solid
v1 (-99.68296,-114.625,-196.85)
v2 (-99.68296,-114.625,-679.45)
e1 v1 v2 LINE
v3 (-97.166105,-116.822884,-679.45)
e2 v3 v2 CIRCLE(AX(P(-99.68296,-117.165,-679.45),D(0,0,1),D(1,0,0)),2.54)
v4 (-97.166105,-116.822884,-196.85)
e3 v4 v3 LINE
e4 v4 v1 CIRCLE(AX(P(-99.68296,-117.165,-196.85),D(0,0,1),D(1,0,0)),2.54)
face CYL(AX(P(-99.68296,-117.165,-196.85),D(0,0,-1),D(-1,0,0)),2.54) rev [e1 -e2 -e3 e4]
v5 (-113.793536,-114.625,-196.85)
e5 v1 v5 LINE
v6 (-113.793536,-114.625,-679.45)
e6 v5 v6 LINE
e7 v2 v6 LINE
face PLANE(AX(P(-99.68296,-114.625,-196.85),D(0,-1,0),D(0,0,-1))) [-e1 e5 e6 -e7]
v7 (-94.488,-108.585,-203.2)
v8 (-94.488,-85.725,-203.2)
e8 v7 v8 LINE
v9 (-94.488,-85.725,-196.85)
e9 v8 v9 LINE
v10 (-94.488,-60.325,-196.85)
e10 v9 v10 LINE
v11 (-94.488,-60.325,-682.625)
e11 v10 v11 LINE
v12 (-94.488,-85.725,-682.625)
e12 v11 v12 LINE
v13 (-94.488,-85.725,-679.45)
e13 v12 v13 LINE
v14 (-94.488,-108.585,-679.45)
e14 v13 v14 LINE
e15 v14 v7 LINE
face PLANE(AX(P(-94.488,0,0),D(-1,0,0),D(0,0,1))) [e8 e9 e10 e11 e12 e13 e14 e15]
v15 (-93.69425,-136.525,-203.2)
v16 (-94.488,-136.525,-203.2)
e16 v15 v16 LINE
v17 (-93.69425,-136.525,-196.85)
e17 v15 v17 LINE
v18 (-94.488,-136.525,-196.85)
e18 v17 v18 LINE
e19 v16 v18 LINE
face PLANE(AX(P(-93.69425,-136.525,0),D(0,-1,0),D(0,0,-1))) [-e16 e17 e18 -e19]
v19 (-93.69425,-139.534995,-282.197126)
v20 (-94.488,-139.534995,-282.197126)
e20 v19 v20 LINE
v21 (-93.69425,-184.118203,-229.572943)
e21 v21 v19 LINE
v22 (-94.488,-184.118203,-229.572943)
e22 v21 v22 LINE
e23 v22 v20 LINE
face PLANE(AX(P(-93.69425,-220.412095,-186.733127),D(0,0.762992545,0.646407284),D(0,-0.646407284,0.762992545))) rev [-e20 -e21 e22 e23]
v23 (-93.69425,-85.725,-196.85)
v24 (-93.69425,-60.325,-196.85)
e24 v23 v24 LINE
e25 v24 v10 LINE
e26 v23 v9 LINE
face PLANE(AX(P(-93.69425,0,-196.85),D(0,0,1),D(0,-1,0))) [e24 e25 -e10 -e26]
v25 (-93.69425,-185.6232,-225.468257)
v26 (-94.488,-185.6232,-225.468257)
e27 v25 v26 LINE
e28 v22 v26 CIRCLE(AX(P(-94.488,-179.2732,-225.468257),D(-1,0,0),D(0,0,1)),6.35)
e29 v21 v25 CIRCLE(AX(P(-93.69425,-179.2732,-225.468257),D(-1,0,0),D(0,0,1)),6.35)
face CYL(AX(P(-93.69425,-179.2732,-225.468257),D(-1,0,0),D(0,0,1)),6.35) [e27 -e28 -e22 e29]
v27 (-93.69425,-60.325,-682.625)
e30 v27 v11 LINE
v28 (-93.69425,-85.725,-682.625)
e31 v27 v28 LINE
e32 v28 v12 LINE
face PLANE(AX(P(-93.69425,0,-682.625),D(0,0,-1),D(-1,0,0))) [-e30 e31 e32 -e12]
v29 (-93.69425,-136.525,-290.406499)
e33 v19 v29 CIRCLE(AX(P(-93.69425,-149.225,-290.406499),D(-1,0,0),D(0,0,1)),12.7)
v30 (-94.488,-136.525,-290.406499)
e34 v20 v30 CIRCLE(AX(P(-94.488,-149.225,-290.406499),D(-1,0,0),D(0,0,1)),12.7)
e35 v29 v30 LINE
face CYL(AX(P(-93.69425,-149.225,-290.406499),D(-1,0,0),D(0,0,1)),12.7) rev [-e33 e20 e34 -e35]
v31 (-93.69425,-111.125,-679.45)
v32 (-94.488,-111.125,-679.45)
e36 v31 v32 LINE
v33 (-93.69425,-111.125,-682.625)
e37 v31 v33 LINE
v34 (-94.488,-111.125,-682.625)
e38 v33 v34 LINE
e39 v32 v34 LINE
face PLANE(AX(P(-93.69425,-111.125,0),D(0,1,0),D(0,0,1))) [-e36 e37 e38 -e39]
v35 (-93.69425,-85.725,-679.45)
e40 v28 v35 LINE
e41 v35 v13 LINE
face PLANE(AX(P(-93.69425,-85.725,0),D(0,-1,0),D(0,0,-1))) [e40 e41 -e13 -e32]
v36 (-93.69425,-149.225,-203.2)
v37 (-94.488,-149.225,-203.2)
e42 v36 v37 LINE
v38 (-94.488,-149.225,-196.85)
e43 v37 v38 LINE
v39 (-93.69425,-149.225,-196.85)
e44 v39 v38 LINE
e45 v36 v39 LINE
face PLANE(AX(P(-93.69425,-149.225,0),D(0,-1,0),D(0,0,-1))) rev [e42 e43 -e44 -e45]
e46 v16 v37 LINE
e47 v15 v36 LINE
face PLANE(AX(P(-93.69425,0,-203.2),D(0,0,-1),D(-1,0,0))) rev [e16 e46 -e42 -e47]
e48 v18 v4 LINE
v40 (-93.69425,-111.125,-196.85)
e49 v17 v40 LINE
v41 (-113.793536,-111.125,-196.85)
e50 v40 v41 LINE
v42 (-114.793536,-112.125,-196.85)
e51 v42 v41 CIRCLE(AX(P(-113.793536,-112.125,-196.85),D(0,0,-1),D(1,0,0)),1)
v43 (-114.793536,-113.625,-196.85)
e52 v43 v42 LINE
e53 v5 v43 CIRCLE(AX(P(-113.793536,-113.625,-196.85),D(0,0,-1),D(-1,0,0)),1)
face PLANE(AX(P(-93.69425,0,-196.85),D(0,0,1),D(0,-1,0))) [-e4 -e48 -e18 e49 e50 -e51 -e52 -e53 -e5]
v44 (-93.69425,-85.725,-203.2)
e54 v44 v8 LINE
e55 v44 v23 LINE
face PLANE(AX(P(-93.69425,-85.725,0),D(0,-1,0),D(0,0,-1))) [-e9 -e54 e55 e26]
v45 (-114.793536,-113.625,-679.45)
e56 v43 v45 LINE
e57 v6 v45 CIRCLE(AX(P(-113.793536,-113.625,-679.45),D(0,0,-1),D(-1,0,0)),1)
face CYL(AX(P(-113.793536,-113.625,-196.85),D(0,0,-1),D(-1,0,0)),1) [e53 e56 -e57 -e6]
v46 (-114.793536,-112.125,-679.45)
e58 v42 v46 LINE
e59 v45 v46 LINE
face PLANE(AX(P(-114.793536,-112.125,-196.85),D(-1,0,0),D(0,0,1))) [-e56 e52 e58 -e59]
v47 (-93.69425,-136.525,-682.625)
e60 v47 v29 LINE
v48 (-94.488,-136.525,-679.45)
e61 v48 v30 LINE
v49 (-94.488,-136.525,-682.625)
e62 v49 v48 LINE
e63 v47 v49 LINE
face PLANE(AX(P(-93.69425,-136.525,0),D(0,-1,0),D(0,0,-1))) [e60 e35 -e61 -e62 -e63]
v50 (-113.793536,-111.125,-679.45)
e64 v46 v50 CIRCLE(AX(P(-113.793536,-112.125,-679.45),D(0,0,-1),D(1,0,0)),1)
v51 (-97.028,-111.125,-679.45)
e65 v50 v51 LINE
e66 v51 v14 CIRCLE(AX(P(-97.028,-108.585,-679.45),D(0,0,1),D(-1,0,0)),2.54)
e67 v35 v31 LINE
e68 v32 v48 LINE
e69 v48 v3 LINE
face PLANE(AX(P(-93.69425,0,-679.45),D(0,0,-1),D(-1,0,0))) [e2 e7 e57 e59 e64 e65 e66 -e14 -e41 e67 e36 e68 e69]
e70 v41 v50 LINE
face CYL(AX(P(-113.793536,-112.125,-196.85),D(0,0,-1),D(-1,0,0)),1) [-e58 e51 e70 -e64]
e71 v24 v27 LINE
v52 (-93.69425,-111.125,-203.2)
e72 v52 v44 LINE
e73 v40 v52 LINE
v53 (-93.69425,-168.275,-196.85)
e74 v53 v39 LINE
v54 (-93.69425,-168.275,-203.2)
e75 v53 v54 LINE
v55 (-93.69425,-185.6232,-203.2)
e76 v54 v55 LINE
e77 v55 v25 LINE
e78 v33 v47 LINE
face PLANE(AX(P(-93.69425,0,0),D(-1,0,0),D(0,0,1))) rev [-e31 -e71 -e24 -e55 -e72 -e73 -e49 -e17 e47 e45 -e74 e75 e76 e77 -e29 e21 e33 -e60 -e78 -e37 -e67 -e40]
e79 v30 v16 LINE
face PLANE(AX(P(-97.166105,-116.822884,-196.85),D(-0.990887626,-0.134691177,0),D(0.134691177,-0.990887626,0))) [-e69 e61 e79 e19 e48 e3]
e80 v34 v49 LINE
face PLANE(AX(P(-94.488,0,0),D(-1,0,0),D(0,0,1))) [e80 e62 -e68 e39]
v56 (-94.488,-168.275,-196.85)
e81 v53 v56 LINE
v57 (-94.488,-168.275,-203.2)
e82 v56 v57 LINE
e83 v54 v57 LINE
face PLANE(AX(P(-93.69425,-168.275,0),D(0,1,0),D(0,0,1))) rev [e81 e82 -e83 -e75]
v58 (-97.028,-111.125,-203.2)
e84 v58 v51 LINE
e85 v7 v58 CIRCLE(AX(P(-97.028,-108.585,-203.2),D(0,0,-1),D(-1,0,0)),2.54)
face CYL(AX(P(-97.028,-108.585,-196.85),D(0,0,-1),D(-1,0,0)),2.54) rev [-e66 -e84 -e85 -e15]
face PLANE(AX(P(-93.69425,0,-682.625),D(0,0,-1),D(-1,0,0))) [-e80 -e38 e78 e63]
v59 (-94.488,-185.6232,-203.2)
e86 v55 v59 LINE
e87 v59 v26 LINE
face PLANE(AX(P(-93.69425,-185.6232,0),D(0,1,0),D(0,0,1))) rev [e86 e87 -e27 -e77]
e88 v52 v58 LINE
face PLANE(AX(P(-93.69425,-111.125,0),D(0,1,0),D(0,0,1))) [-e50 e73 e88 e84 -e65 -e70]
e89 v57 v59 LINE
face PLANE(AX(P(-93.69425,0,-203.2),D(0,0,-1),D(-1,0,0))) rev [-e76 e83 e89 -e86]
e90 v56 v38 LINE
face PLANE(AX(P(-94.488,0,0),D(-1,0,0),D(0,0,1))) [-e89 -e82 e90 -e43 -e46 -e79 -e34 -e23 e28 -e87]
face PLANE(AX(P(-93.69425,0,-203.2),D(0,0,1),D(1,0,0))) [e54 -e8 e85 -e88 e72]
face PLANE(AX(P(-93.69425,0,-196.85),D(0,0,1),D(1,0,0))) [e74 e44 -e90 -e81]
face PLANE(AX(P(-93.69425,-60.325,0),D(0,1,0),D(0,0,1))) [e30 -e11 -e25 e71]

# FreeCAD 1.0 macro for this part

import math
import FreeCAD as App
import Part
import Sketcher
from FreeCAD import Vector
Q = App.Units.Quantity


def add_polygon(sketch, points):
    """Adds a closed chain of lines whose ends are joined by coincident constraints."""
    first, n = sketch.GeometryCount, len(points)
    for a, b in zip(points, points[1:] + points[:1]):
        sketch.addGeometry(Part.LineSegment(App.Vector(*a, 0), App.Vector(*b, 0)), False)
    for i in range(n):
        sketch.addConstraint(Sketcher.Constraint("Coincident", first + i, 2, first + (i + 1) % n, 1))

doc = App.newDocument("Part")
body = doc.addObject("PartDesign::Body", "Body")

sketch1 = body.newObject("Sketcher::SketchObject", "Sketch")
sketch1.AttachmentSupport = (doc.getObject("YZ_Plane"), [""])
sketch1.MapMode = "FlatFace"
sketch1.AttachmentOffset = App.Placement(Vector(0, 0, -3.72 * 25.4), App.Rotation())
sketch1.addGeometry([
    Part.LineSegment(Vector(-111.1, -196.8, 0), Vector(-111.1, -203.2, 0)),
    Part.LineSegment(Vector(-111.1, -203.2, 0), Vector(-85.7, -203.2, 0)),
    Part.LineSegment(Vector(-85.7, -203.2, 0), Vector(-85.7, -196.8, 0)),
    Part.LineSegment(Vector(-85.7, -196.8, 0), Vector(-60.3, -196.8, 0)),
    Part.LineSegment(Vector(-60.3, -196.8, 0), Vector(-60.3, -682.6, 0)),
    Part.LineSegment(Vector(-60.3, -682.6, 0), Vector(-85.7, -682.6, 0)),
    Part.LineSegment(Vector(-85.7, -682.6, 0), Vector(-85.7, -679.5, 0)),
    Part.LineSegment(Vector(-85.7, -679.5, 0), Vector(-111.1, -679.5, 0)),
    Part.LineSegment(Vector(-111.1, -679.5, 0), Vector(-111.1, -682.6, 0)),
    Part.LineSegment(Vector(-111.1, -682.6, 0), Vector(-136.5, -682.6, 0)),
    Part.LineSegment(Vector(-136.5, -682.6, 0), Vector(-136.5, -290.4, 0)),
    Part.ArcOfCircle(Part.Circle(Vector(-149.2, -290.4, 0), Vector(0, 0, 1), 12.7), math.radians(0), math.radians(40)),
    Part.LineSegment(Vector(-139.5, -282.2, 0), Vector(-184.1, -229.6, 0)),
    Part.ArcOfCircle(Part.Circle(Vector(-179.3, -225.5, 0), Vector(0, 0, 1), 6.3), math.radians(180), math.radians(220)),
    Part.LineSegment(Vector(-185.6, -225.5, 0), Vector(-185.6, -203.2, 0)),
    Part.LineSegment(Vector(-185.6, -203.2, 0), Vector(-168.3, -203.2, 0)),
    Part.LineSegment(Vector(-168.3, -203.2, 0), Vector(-168.3, -196.8, 0)),
    Part.LineSegment(Vector(-168.3, -196.8, 0), Vector(-149.2, -196.8, 0)),
    Part.LineSegment(Vector(-149.2, -196.8, 0), Vector(-149.2, -203.2, 0)),
    Part.LineSegment(Vector(-149.2, -203.2, 0), Vector(-136.5, -203.2, 0)),
    Part.LineSegment(Vector(-136.5, -203.2, 0), Vector(-136.5, -196.8, 0)),
    Part.LineSegment(Vector(-136.5, -196.8, 0), Vector(-111.1, -196.8, 0)),
], False)
sketch1.addConstraint([
    Sketcher.Constraint("Coincident", 0, 2, 1, 1),
    Sketcher.Constraint("Coincident", 1, 2, 2, 1),
    Sketcher.Constraint("Coincident", 2, 2, 3, 1),
    Sketcher.Constraint("Coincident", 3, 2, 4, 1),
    Sketcher.Constraint("Coincident", 4, 2, 5, 1),
    Sketcher.Constraint("Coincident", 5, 2, 6, 1),
    Sketcher.Constraint("Coincident", 6, 2, 7, 1),
    Sketcher.Constraint("Coincident", 7, 2, 8, 1),
    Sketcher.Constraint("Coincident", 8, 2, 9, 1),
    Sketcher.Constraint("Coincident", 9, 2, 10, 1),
    Sketcher.Constraint("Tangent", 10, 2, 11, 1),
    Sketcher.Constraint("Tangent", 11, 2, 12, 1),
    Sketcher.Constraint("Tangent", 12, 2, 13, 2),
    Sketcher.Constraint("Tangent", 13, 1, 14, 1),
    Sketcher.Constraint("Coincident", 14, 2, 15, 1),
    Sketcher.Constraint("Coincident", 15, 2, 16, 1),
    Sketcher.Constraint("Coincident", 16, 2, 17, 1),
    Sketcher.Constraint("Coincident", 17, 2, 18, 1),
    Sketcher.Constraint("Coincident", 18, 2, 19, 1),
    Sketcher.Constraint("Coincident", 19, 2, 20, 1),
    Sketcher.Constraint("Coincident", 20, 2, 21, 1),
    Sketcher.Constraint("Coincident", 21, 2, 0, 1),
    Sketcher.Constraint("Vertical", 0),
    Sketcher.Constraint("Horizontal", 1),
    Sketcher.Constraint("Vertical", 2),
    Sketcher.Constraint("Horizontal", 3),
    Sketcher.Constraint("Vertical", 4),
    Sketcher.Constraint("Horizontal", 5),
    Sketcher.Constraint("Vertical", 6),
    Sketcher.Constraint("Horizontal", 7),
    Sketcher.Constraint("Vertical", 8),
    Sketcher.Constraint("Horizontal", 9),
    Sketcher.Constraint("Vertical", 10),
    Sketcher.Constraint("Vertical", 14),
    Sketcher.Constraint("Horizontal", 15),
    Sketcher.Constraint("Vertical", 16),
    Sketcher.Constraint("Horizontal", 17),
    Sketcher.Constraint("Vertical", 18),
    Sketcher.Constraint("Horizontal", 19),
    Sketcher.Constraint("Vertical", 20),
    Sketcher.Constraint("Horizontal", 21),
    Sketcher.Constraint("Horizontal", 5, 2, 8, 2),
    Sketcher.Constraint("Horizontal", 1, 2, 14, 2),
    Sketcher.Constraint("Horizontal", 3, 2, 16, 2),
    Sketcher.Constraint("Horizontal", 15, 2, 18, 2),
    Sketcher.Constraint("Horizontal", 17, 2, 20, 2),
    Sketcher.Constraint("Vertical", 2, 2, 5, 2),
    Sketcher.Constraint("Vertical", 0, 2, 7, 2),
    Sketcher.Constraint("Vertical", 11, 3, 17, 2),
    Sketcher.Constraint("Vertical", 10, 2, 19, 2),
    Sketcher.Constraint("Equal", 1, 3),
    Sketcher.Constraint("Equal", 7, 9),
    Sketcher.Constraint("Radius", 11, Q("0.5 in")),
    Sketcher.Constraint("DistanceX", 1, 1, 1, 2, Q("1 in")),
    Sketcher.Constraint("Radius", 13, Q("0.25 in")),
    Sketcher.Constraint("DistanceY", 0, 2, -1, 1, Q("8 in")),
    Sketcher.Constraint("DistanceX", 17, 1, 17, 2, Q("0.75 in")),
    Sketcher.Constraint("DistanceY", 0, 2, 0, 1, Q("0.25 in")),
    Sketcher.Constraint("DistanceX", 15, 1, 15, 2, Q("0.683 in")),
    Sketcher.Constraint("DistanceY", 4, 2, 4, 1, Q("19.125 in")),
    Sketcher.Constraint("DistanceY", 6, 1, 6, 2, Q("0.125 in")),
    Sketcher.Constraint("DistanceX", 11, 3, -1, 1, Q("5.875 in")),
    Sketcher.Constraint("DistanceY", 10, 1, 10, 2, Q("392.218501 mm")),
    Sketcher.Constraint("Distance", 12, Q("68.97077 mm")),
])
pad1 = body.newObject("PartDesign::Pad", "Pad")
pad1.Profile = sketch1
pad1.Length = Q("0.03125 in")

sketch2 = body.newObject("Sketcher::SketchObject", "Sketch001")
sketch2.AttachmentSupport = (doc.getObject("XY_Plane"), [""])
sketch2.MapMode = "FlatFace"
sketch2.AttachmentOffset = App.Placement(Vector(0, 0, -26.75 * 25.4), App.Rotation())
sketch2.addGeometry([
    Part.LineSegment(Vector(-94.5, -136.5, 0), Vector(-97.2, -116.8, 0)),
    Part.ArcOfCircle(Part.Circle(Vector(-99.7, -117.2, 0), Vector(0, 0, 1), 2.5), math.radians(8), math.radians(90)),
    Part.LineSegment(Vector(-99.7, -114.6, 0), Vector(-113.8, -114.6, 0)),
    Part.ArcOfCircle(Part.Circle(Vector(-113.8, -113.6, 0), Vector(0, 0, 1), 1), math.radians(-180), math.radians(-90)),
    Part.LineSegment(Vector(-114.8, -113.6, 0), Vector(-114.8, -112.1, 0)),
    Part.ArcOfCircle(Part.Circle(Vector(-113.8, -112.1, 0), Vector(0, 0, 1), 1), math.radians(90), math.radians(180)),
    Part.LineSegment(Vector(-113.8, -111.1, 0), Vector(-97, -111.1, 0)),
    Part.ArcOfCircle(Part.Circle(Vector(-97, -108.6, 0), Vector(0, 0, 1), 2.5), math.radians(-90), math.radians(0)),
    Part.LineSegment(Vector(-94.5, -108.6, 0), Vector(-94.5, -136.5, 0)),
], False)
sketch2.addConstraint([
    Sketcher.Constraint("Tangent", 0, 2, 1, 1),
    Sketcher.Constraint("Tangent", 1, 2, 2, 1),
    Sketcher.Constraint("Tangent", 2, 2, 3, 2),
    Sketcher.Constraint("Tangent", 3, 1, 4, 1),
    Sketcher.Constraint("Tangent", 4, 2, 5, 2),
    Sketcher.Constraint("Tangent", 5, 1, 6, 1),
    Sketcher.Constraint("Tangent", 6, 2, 7, 1),
    Sketcher.Constraint("Tangent", 7, 2, 8, 1),
    Sketcher.Constraint("Coincident", 8, 2, 0, 1),
    Sketcher.Constraint("Horizontal", 2),
    Sketcher.Constraint("Vertical", 4),
    Sketcher.Constraint("Horizontal", 6),
    Sketcher.Constraint("Vertical", 8),
    Sketcher.Constraint("Equal", 3, 5),
    Sketcher.Constraint("Equal", 1, 7),
    Sketcher.Constraint("Radius", 1, Q("0.1 in")),
    Sketcher.Constraint("DistanceY", 8, 2, 8, 1, Q("1.1 in")),
    Sketcher.Constraint("DistanceX", 7, 3, -1, 1, Q("3.82 in")),
    Sketcher.Constraint("Radius", 3, Q("1 mm")),
    Sketcher.Constraint("DistanceY", 7, 3, -1, 1, Q("4.275 in")),
    Sketcher.Constraint("DistanceY", 4, 1, 4, 2, Q("1.5 mm")),
    Sketcher.Constraint("Distance", 0, Q("19.8833 mm")),
    Sketcher.Constraint("DistanceX", 2, 2, 2, 1, Q("14.110577 mm")),
])
pad2 = body.newObject("PartDesign::Pad", "Pad001")
pad2.Profile = sketch2
pad2.Length = Q("19 in")

sketch3 = body.newObject("Sketcher::SketchObject", "Sketch002")
sketch3.AttachmentSupport = (doc.getObject("YZ_Plane"), [""])
sketch3.MapMode = "FlatFace"
sketch3.AttachmentOffset = App.Placement(Vector(0, 0, -93.69425), App.Rotation())
add_polygon(sketch3, [(-106.4, -173), (-111.1, -173), (-111.1, -203.2), (-106.4, -203.2)])
sketch3.addConstraint([
    Sketcher.Constraint("Horizontal", 0),
    Sketcher.Constraint("Vertical", 1),
    Sketcher.Constraint("Horizontal", 2),
    Sketcher.Constraint("Vertical", 3),
    Sketcher.Constraint("DistanceY", 1, 2, -1, 1, Q("8 in")),
    Sketcher.Constraint("DistanceX", 0, 2, -1, 1, Q("4.375 in")),
    Sketcher.Constraint("DistanceX", 0, 2, 0, 1, Q("4.701477 mm")),
    Sketcher.Constraint("DistanceY", 1, 2, 1, 1, Q("30.221142 mm")),
])
pocket1 = body.newObject("PartDesign::Pocket", "Pocket")
pocket1.Profile = sketch3
pocket1.Length = Q("1.1 in")

doc.recompute()
